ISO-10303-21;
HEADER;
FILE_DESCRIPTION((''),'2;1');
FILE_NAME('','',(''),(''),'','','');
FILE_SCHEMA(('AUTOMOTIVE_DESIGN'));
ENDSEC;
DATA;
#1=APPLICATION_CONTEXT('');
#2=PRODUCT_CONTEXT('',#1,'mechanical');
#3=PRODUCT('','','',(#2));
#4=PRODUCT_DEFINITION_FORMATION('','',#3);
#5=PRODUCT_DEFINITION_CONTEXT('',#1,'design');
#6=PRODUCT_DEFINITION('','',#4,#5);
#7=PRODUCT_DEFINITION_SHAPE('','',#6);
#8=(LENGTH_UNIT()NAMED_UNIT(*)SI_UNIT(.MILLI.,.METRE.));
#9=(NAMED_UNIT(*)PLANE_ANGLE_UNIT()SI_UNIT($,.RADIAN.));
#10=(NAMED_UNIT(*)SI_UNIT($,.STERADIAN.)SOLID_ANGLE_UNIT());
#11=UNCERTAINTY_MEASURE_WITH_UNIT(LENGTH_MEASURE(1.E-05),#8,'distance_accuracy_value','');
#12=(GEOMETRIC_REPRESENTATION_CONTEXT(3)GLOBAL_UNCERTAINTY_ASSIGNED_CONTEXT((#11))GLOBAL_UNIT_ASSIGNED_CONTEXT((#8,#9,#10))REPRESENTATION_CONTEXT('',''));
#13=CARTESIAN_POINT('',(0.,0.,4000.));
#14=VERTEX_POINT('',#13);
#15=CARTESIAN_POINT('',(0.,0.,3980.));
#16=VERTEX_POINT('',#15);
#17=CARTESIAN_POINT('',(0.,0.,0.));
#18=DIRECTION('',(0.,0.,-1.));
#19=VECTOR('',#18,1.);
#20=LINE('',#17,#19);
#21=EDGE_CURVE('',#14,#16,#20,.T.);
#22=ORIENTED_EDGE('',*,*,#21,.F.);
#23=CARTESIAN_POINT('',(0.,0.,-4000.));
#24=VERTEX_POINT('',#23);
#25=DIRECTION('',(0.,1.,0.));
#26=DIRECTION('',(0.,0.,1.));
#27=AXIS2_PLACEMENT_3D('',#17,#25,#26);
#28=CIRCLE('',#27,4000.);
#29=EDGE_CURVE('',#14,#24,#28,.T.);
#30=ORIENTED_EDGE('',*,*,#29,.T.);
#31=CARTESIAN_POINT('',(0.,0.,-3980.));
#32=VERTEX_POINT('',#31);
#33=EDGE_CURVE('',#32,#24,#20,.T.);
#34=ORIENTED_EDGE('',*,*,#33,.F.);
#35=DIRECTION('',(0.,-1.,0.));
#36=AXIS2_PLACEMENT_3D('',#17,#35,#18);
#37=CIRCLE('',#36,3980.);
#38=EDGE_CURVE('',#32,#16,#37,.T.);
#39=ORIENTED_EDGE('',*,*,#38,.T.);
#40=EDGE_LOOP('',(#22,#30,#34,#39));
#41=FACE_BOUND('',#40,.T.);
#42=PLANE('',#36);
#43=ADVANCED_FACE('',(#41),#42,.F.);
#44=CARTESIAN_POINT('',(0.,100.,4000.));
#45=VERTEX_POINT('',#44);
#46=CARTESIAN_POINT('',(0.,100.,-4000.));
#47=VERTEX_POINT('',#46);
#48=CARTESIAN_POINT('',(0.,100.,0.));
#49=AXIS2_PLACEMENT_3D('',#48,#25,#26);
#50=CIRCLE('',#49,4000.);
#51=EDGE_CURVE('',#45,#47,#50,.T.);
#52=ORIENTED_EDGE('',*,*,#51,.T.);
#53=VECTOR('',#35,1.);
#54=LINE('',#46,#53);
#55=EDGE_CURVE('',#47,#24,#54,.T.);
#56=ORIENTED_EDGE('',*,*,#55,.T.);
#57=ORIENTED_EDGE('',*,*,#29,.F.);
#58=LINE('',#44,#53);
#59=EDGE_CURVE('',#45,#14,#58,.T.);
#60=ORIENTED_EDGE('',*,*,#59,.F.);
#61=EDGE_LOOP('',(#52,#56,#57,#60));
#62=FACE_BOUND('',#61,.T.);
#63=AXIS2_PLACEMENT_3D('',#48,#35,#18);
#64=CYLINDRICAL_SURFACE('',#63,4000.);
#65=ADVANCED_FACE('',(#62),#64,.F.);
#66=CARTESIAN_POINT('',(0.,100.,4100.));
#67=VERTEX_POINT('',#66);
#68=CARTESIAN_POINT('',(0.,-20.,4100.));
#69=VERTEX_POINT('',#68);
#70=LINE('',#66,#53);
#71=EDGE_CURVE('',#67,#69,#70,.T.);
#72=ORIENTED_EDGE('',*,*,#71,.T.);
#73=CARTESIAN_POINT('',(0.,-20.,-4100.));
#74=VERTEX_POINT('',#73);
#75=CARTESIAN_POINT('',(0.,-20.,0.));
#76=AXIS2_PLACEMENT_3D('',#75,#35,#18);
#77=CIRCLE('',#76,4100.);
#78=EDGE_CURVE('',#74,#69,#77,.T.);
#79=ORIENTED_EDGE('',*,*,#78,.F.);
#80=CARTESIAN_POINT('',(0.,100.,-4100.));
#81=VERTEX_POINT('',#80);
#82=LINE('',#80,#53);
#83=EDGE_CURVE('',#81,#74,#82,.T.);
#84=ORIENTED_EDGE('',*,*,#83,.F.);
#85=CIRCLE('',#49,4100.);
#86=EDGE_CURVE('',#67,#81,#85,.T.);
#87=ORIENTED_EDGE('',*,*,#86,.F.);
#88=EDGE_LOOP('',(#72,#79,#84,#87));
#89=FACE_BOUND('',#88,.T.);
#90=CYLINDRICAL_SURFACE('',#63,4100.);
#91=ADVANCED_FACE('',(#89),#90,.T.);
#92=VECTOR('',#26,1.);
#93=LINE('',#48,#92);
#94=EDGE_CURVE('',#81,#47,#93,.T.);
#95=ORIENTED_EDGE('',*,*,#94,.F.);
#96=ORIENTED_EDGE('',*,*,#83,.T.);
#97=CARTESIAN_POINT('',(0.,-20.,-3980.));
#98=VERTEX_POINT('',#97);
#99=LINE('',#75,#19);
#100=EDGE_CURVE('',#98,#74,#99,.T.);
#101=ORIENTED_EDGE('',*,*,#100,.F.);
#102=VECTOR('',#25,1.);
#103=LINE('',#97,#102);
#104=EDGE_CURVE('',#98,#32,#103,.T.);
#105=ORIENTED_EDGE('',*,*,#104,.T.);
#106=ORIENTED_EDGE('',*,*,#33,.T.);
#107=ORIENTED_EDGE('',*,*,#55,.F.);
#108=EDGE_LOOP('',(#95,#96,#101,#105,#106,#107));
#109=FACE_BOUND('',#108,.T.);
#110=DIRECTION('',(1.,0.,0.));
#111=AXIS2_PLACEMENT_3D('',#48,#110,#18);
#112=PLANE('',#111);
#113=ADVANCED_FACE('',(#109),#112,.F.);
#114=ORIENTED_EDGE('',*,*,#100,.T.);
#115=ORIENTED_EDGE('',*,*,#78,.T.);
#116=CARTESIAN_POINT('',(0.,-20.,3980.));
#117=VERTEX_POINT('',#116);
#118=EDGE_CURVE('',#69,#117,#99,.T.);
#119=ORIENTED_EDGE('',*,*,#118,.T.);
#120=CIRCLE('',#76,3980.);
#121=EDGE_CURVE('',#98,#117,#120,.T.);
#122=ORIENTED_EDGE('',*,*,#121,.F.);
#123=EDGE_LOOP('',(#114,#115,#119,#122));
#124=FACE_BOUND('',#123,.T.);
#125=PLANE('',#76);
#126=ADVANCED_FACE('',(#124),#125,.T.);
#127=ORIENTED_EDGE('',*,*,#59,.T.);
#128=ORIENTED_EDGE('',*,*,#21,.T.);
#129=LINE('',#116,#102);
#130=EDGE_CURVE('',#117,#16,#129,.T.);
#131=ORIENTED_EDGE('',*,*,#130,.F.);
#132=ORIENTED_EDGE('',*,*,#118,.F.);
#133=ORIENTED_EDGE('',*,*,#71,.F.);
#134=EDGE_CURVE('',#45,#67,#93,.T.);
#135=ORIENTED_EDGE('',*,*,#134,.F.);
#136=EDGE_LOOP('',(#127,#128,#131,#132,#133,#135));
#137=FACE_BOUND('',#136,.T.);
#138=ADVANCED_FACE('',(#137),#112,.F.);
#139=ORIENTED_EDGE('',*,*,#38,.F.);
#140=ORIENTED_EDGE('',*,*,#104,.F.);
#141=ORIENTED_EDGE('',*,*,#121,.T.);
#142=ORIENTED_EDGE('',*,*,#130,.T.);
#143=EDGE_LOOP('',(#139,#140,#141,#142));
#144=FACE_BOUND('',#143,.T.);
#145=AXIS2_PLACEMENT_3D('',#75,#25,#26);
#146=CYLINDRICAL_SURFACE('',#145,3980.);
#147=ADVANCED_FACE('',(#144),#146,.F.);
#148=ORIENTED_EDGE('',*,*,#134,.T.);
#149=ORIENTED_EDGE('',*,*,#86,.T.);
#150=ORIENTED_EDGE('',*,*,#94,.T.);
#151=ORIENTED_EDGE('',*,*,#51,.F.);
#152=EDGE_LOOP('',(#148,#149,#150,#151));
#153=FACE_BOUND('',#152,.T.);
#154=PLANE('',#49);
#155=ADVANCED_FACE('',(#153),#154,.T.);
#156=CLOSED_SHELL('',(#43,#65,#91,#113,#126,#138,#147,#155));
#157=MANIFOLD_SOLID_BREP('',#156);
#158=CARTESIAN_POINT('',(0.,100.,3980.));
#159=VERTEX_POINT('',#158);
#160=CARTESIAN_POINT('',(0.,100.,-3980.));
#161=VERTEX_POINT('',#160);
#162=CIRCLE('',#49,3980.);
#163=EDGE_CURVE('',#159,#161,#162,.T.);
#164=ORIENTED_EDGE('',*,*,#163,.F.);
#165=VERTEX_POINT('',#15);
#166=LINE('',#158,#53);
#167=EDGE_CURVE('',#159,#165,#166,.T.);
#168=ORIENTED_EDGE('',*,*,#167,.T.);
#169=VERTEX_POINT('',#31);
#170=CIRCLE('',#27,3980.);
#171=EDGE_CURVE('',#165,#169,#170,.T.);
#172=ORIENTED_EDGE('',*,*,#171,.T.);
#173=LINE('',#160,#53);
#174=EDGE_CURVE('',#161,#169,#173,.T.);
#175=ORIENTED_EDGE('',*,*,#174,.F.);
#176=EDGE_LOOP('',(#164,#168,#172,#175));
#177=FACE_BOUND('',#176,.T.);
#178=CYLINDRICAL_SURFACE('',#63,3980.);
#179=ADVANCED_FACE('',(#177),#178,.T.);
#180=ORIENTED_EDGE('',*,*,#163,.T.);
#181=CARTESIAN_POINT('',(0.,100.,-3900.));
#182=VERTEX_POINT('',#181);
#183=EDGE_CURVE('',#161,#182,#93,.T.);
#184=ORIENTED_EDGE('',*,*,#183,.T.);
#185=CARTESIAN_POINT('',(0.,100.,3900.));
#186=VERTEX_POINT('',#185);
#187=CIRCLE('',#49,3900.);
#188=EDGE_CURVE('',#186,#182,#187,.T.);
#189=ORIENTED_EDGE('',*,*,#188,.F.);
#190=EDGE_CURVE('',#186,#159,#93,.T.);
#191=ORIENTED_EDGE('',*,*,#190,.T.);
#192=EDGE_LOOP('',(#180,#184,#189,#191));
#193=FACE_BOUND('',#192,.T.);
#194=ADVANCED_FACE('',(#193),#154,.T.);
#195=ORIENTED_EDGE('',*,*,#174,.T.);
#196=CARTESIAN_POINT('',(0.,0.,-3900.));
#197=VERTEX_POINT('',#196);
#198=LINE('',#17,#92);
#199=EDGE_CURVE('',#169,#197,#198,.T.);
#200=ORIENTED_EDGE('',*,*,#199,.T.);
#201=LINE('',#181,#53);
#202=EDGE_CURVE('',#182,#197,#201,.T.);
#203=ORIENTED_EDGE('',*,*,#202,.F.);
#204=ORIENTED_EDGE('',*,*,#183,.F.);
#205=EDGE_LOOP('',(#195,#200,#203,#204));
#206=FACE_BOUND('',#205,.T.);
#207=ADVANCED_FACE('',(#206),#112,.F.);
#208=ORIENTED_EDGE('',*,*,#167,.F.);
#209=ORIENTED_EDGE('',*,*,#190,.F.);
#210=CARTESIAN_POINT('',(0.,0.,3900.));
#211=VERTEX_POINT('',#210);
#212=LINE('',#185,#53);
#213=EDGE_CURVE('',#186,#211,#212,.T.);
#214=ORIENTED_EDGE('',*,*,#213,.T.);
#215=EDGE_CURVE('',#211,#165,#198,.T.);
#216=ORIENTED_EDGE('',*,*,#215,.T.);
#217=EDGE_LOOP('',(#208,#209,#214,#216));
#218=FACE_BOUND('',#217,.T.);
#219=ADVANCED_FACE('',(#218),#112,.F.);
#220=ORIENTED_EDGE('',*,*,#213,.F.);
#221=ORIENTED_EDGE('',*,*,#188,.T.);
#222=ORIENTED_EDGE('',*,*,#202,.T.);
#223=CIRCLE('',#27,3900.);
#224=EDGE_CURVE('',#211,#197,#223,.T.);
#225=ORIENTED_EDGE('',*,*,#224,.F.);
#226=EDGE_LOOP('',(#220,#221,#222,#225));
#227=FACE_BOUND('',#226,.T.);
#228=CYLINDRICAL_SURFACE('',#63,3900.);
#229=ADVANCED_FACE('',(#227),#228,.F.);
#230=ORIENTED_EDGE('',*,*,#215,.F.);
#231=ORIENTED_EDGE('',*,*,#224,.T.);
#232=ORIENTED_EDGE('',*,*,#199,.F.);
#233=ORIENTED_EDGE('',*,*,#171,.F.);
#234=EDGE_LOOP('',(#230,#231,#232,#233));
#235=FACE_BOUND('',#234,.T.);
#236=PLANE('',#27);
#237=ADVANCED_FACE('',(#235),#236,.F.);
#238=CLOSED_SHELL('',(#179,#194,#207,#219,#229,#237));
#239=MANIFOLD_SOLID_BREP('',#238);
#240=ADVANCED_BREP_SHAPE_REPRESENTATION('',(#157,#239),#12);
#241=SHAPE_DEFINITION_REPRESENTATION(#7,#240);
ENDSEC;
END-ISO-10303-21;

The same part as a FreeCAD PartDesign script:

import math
import FreeCAD as App
import Part
import Sketcher
from FreeCAD import Vector

doc = App.newDocument("Part")
body = doc.addObject("PartDesign::Body", "Body")

# Sketch on XZ plane
sketch1 = doc.addObject("Sketcher::SketchObject", "Sketch")
body.addObject(sketch1)
sketch1.AttachmentSupport = (doc.XZ_Plane, [""])
sketch1.MapMode = "FlatFace"
sketch1.addGeometry(Part.LineSegment(Vector(0, -4100, 0), Vector(0, -4000, 0)), False)
sketch1.addGeometry(Part.ArcOfCircle(Part.Circle(Vector(0, 0, 0), Vector(0, 0, 1), 4000), math.radians(-90), math.radians(90)), False)
sketch1.addGeometry(Part.LineSegment(Vector(0, 4000, 0), Vector(0, 4100, 0)), False)
sketch1.addGeometry(Part.ArcOfCircle(Part.Circle(Vector(0, 0, 0), Vector(0, 0, 1), 4100), math.radians(-90), math.radians(90)), False)
sketch1.addConstraint(Sketcher.Constraint("Coincident", 0, 2, 1, 1))
sketch1.addConstraint(Sketcher.Constraint("Coincident", 1, 2, 2, 1))
sketch1.addConstraint(Sketcher.Constraint("Coincident", 2, 2, 3, 2))
sketch1.addConstraint(Sketcher.Constraint("Coincident", 3, 1, 0, 1))
sketch1.addConstraint(Sketcher.Constraint("Vertical", 0))
sketch1.addConstraint(Sketcher.Constraint("Vertical", 2))
sketch1.addConstraint(Sketcher.Constraint("Coincident", 1, 3, -1, 1))
sketch1.addConstraint(Sketcher.Constraint("Coincident", 3, 3, -1, 1))
sketch1.addConstraint(Sketcher.Constraint("PointOnObject", 0, 2, -2))
sketch1.addConstraint(Sketcher.Constraint("PointOnObject", 2, 2, -2))
sketch1.addConstraint(Sketcher.Constraint("Radius", 1, 4000.0))
sketch1.addConstraint(Sketcher.Constraint("Radius", 3, 4100.0))
pad1 = doc.addObject("PartDesign::Pad", "Pad")
body.addObject(pad1)
pad1.Profile = sketch1
pad1.Length = 100
pad1.Reversed = True

# Sketch on XZ plane
sketch2 = doc.addObject("Sketcher::SketchObject", "Sketch001")
body.addObject(sketch2)
sketch2.AttachmentSupport = (doc.XZ_Plane, [""])
sketch2.MapMode = "FlatFace"
sketch2.AttachmentOffset = App.Placement(Vector(0, 0, 20), App.Rotation())
sketch2.addGeometry(Part.LineSegment(Vector(0, 4100, 0), Vector(0, 3980, 0)), False)
sketch2.addGeometry(Part.ArcOfCircle(Part.Circle(Vector(0, 0, 0), Vector(0, 0, 1), 3980), math.radians(-90), math.radians(90)), False)
sketch2.addGeometry(Part.LineSegment(Vector(0, -3980, 0), Vector(0, -4100, 0)), False)
sketch2.addGeometry(Part.ArcOfCircle(Part.Circle(Vector(0, 0, 0), Vector(0, 0, 1), 4100), math.radians(-90), math.radians(90)), False)
sketch2.addConstraint(Sketcher.Constraint("Coincident", 0, 2, 1, 2))
sketch2.addConstraint(Sketcher.Constraint("Coincident", 1, 1, 2, 1))
sketch2.addConstraint(Sketcher.Constraint("Coincident", 2, 2, 3, 1))
sketch2.addConstraint(Sketcher.Constraint("Coincident", 3, 2, 0, 1))
sketch2.addConstraint(Sketcher.Constraint("Vertical", 0))
sketch2.addConstraint(Sketcher.Constraint("Vertical", 2))
sketch2.addConstraint(Sketcher.Constraint("Coincident", 1, 3, -1, 1))
sketch2.addConstraint(Sketcher.Constraint("Coincident", 3, 3, -1, 1))
sketch2.addConstraint(Sketcher.Constraint("PointOnObject", 0, 2, -2))
sketch2.addConstraint(Sketcher.Constraint("PointOnObject", 2, 2, -2))
sketch2.addConstraint(Sketcher.Constraint("Radius", 1, 3980.0))
sketch2.addConstraint(Sketcher.Constraint("Radius", 3, 4100.0))
pad2 = doc.addObject("PartDesign::Pad", "Pad001")
body.addObject(pad2)
pad2.Profile = sketch2
pad2.Length = 20
pad2.Reversed = True
body2 = doc.addObject("PartDesign::Body", "Body001")

# Sketch on XZ plane
sketch3 = doc.addObject("Sketcher::SketchObject", "Sketch002")
body2.addObject(sketch3)
sketch3.AttachmentSupport = (doc.getObject("XZ_Plane001"), [""])
sketch3.MapMode = "FlatFace"
sketch3.addGeometry(Part.LineSegment(Vector(0, -3980, 0), Vector(0, -3900, 0)), False)
sketch3.addGeometry(Part.ArcOfCircle(Part.Circle(Vector(0, 0, 0), Vector(0, 0, 1), 3900), math.radians(-90), math.radians(90)), False)
sketch3.addGeometry(Part.LineSegment(Vector(0, 3900, 0), Vector(0, 3980, 0)), False)
sketch3.addGeometry(Part.ArcOfCircle(Part.Circle(Vector(0, 0, 0), Vector(0, 0, 1), 3980), math.radians(-90), math.radians(90)), False)
sketch3.addConstraint(Sketcher.Constraint("Coincident", 0, 2, 1, 1))
sketch3.addConstraint(Sketcher.Constraint("Coincident", 1, 2, 2, 1))
sketch3.addConstraint(Sketcher.Constraint("Coincident", 2, 2, 3, 2))
sketch3.addConstraint(Sketcher.Constraint("Coincident", 3, 1, 0, 1))
sketch3.addConstraint(Sketcher.Constraint("Vertical", 0))
sketch3.addConstraint(Sketcher.Constraint("Vertical", 2))
sketch3.addConstraint(Sketcher.Constraint("Coincident", 1, 3, -1, 1))
sketch3.addConstraint(Sketcher.Constraint("Coincident", 3, 3, -1, 1))
sketch3.addConstraint(Sketcher.Constraint("PointOnObject", 0, 2, -2))
sketch3.addConstraint(Sketcher.Constraint("PointOnObject", 2, 2, -2))
sketch3.addConstraint(Sketcher.Constraint("Radius", 1, 3900.0))
sketch3.addConstraint(Sketcher.Constraint("Radius", 3, 3980.0))
pad3 = doc.addObject("PartDesign::Pad", "Pad002")
body2.addObject(pad3)
pad3.Profile = sketch3
pad3.Length = 100
pad3.Reversed = True

doc.recompute()
